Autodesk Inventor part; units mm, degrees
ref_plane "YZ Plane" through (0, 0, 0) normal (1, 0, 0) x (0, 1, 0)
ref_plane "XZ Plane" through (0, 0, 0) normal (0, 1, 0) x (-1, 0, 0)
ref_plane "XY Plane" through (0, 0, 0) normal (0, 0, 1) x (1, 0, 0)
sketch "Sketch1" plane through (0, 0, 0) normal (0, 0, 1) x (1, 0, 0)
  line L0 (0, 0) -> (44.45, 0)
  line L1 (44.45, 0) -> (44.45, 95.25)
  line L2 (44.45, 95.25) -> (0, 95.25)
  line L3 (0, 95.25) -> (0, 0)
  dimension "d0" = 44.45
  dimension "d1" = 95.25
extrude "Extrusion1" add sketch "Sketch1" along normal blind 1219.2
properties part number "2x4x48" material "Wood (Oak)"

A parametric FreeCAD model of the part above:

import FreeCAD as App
import Part
import Sketcher
from FreeCAD import Vector
Q = App.Units.Quantity

doc = App.newDocument("Part")
params = doc.addObject("Spreadsheet::Sheet", "Params")
for row, (alias, value) in enumerate([
    ("sketch1_width", "1.75 in"),
    ("sketch1_height", "3.75 in"),
    ("pad1_length", "48 in"),
], start=1):
    params.set(f"A{row}", alias)
    params.set(f"B{row}", "=" + value)
    params.setAlias(f"B{row}", alias)

body = doc.addObject("PartDesign::Body", "Body")

sketch1 = body.newObject("Sketcher::SketchObject", "Sketch")
sketch1.AttachmentSupport = (doc.getObject("XY_Plane"), [""])
sketch1.MapMode = "FlatFace"
sketch1.addGeometry([
    Part.LineSegment(Vector(0, 95.25, 0), Vector(0, 0, 0)),
    Part.LineSegment(Vector(0, 0, 0), Vector(44.45, 0, 0)),
    Part.LineSegment(Vector(44.45, 0, 0), Vector(44.45, 95.25, 0)),
    Part.LineSegment(Vector(44.45, 95.25, 0), Vector(0, 95.25, 0)),
], False)
sketch1.addConstraint([
    Sketcher.Constraint("Coincident", 0, 2, 1, 1),
    Sketcher.Constraint("Coincident", 1, 2, 2, 1),
    Sketcher.Constraint("Coincident", 2, 2, 3, 1),
    Sketcher.Constraint("Coincident", 3, 2, 0, 1),
    Sketcher.Constraint("Vertical", 0),
    Sketcher.Constraint("Horizontal", 1),
    Sketcher.Constraint("Vertical", 2),
    Sketcher.Constraint("Horizontal", 3),
    Sketcher.Constraint("Coincident", 0, 2, -1, 1),
    Sketcher.Constraint("DistanceX", 1, 1, 1, 2, Q("1.75 in")),
    Sketcher.Constraint("DistanceY", 0, 2, 0, 1, Q("3.75 in")),
])
sketch1.setExpression("Constraints[9]", "Params.sketch1_width")
sketch1.setExpression("Constraints[10]", "Params.sketch1_height")
pad1 = body.newObject("PartDesign::Pad", "Pad")
pad1.Profile = sketch1
pad1.setExpression("Length", "Params.pad1_length")

doc.recompute()
